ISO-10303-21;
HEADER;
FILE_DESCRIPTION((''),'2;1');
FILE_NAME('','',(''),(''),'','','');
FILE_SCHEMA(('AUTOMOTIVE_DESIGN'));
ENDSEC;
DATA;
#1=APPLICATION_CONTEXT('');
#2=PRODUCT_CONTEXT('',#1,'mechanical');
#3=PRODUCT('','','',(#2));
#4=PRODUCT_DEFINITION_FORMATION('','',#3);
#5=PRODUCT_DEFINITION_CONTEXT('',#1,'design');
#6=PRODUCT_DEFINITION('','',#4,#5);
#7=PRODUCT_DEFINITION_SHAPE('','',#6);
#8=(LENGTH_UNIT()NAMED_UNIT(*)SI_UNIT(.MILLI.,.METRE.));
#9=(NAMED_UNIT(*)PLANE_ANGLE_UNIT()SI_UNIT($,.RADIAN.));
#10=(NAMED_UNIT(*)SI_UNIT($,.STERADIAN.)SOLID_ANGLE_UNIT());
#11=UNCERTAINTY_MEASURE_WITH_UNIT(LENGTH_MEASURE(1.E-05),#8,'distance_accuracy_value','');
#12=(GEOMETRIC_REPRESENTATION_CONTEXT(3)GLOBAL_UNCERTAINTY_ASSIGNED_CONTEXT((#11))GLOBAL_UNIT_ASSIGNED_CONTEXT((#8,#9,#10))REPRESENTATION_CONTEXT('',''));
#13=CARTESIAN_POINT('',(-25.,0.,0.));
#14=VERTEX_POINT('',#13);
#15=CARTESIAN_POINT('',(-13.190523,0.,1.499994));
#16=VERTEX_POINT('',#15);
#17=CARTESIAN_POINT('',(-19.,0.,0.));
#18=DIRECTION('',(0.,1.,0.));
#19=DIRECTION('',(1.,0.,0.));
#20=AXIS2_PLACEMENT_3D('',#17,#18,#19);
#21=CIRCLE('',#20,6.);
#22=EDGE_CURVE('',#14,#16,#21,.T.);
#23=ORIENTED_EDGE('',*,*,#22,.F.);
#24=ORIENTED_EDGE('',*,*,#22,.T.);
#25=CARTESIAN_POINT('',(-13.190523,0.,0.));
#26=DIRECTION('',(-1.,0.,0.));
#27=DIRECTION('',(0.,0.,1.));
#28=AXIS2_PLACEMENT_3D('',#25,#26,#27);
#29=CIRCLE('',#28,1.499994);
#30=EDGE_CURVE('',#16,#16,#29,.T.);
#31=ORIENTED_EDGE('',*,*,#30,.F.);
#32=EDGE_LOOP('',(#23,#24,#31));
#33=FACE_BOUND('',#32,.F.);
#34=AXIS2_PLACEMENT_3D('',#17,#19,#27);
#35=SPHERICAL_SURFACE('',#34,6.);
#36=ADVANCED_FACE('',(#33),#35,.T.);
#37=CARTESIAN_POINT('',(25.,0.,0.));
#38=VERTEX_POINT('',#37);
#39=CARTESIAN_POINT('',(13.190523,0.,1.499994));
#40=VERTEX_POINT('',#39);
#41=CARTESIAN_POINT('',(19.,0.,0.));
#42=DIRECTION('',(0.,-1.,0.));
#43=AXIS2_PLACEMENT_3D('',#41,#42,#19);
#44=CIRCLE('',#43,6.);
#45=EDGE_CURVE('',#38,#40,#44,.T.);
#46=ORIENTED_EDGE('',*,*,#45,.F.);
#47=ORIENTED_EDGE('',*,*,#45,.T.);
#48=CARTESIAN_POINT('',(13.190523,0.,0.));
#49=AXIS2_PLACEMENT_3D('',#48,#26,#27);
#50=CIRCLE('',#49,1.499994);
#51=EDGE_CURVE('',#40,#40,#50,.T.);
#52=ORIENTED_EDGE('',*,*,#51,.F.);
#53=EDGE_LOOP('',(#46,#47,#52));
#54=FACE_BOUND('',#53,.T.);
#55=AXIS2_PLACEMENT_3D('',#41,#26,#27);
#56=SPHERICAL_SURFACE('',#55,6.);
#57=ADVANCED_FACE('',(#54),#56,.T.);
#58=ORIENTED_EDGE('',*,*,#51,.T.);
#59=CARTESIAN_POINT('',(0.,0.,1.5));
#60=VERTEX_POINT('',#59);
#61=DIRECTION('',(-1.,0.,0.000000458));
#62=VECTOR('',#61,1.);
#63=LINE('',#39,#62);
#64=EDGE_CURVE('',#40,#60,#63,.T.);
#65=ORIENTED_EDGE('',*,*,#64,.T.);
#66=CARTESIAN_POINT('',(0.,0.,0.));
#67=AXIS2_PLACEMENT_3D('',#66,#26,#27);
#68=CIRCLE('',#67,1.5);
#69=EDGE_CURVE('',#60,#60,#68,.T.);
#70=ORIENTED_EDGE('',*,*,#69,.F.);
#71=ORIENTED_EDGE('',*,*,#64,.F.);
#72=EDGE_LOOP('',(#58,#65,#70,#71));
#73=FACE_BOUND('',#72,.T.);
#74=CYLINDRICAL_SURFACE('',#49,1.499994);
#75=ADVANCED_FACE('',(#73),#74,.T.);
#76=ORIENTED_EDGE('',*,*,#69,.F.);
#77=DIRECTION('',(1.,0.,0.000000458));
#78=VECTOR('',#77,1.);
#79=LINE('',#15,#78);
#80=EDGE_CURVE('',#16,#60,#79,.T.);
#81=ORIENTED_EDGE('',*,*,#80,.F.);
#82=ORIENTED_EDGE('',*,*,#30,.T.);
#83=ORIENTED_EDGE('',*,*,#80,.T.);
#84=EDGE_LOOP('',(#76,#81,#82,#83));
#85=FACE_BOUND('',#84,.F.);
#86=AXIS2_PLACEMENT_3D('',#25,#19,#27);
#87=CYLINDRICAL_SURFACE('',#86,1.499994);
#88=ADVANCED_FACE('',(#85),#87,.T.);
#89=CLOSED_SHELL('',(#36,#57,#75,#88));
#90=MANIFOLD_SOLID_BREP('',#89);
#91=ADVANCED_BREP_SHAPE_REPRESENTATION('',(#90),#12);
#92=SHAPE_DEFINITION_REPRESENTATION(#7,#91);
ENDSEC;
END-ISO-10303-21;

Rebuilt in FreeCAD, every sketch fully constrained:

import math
import FreeCAD as App
import Part
import Sketcher

V = App.Vector

doc = App.newDocument("Part")
body = doc.addObject("PartDesign::Body", "Body")

# Sketch on XZ plane
sketch1 = body.newObject("Sketcher::SketchObject", "Sketch")
sketch1.AttachmentSupport = (doc.getObject("XZ_Plane"), [""])
sketch1.MapMode = "FlatFace"
sketch1.addGeometry(Part.LineSegment(V(13, 2, 0), V(-13, 2, 0)), False)
sketch1.addGeometry(Part.ArcOfCircle(Part.Circle(V(-19, 0, 0), V(0, 0, 1), 6), math.radians(14), math.radians(180)), False)
sketch1.addGeometry(Part.LineSegment(V(-25, 0, 0), V(25, 0, 0)), False)
sketch1.addGeometry(Part.ArcOfCircle(Part.Circle(V(19, 0, 0), V(0, 0, 1), 6), math.radians(0), math.radians(166)), False)
sketch1.addConstraint(Sketcher.Constraint("Coincident", 0, 2, 1, 1))
sketch1.addConstraint(Sketcher.Constraint("Coincident", 1, 2, 2, 1))
sketch1.addConstraint(Sketcher.Constraint("Coincident", 2, 2, 3, 1))
sketch1.addConstraint(Sketcher.Constraint("Coincident", 3, 2, 0, 1))
sketch1.addConstraint(Sketcher.Constraint("Horizontal", 0))
sketch1.addConstraint(Sketcher.Constraint("Horizontal", 2))
sketch1.addConstraint(Sketcher.Constraint("Equal", 1, 3))
sketch1.addConstraint(Sketcher.Constraint("Symmetric", 1, 3, 3, 3, -1, 1))
sketch1.addConstraint(Sketcher.Constraint("PointOnObject", 1, 3, -1))
sketch1.addConstraint(Sketcher.Constraint("PointOnObject", 1, 2, -1))
sketch1.addConstraint(Sketcher.Constraint("Radius", 1, 6.0))
sketch1.addConstraint(Sketcher.Constraint("DistanceX", 2, 1, 2, 2, 50.0))
sketch1.addConstraint(Sketcher.Constraint("DistanceY", -1, 1, 0, 2, 1.5))
revolution = body.newObject("PartDesign::Revolution", "Revolution")
revolution.Profile = sketch1
revolution.ReferenceAxis = (sketch1, ["H_Axis"])
revolution.Angle = 360

doc.recompute()
